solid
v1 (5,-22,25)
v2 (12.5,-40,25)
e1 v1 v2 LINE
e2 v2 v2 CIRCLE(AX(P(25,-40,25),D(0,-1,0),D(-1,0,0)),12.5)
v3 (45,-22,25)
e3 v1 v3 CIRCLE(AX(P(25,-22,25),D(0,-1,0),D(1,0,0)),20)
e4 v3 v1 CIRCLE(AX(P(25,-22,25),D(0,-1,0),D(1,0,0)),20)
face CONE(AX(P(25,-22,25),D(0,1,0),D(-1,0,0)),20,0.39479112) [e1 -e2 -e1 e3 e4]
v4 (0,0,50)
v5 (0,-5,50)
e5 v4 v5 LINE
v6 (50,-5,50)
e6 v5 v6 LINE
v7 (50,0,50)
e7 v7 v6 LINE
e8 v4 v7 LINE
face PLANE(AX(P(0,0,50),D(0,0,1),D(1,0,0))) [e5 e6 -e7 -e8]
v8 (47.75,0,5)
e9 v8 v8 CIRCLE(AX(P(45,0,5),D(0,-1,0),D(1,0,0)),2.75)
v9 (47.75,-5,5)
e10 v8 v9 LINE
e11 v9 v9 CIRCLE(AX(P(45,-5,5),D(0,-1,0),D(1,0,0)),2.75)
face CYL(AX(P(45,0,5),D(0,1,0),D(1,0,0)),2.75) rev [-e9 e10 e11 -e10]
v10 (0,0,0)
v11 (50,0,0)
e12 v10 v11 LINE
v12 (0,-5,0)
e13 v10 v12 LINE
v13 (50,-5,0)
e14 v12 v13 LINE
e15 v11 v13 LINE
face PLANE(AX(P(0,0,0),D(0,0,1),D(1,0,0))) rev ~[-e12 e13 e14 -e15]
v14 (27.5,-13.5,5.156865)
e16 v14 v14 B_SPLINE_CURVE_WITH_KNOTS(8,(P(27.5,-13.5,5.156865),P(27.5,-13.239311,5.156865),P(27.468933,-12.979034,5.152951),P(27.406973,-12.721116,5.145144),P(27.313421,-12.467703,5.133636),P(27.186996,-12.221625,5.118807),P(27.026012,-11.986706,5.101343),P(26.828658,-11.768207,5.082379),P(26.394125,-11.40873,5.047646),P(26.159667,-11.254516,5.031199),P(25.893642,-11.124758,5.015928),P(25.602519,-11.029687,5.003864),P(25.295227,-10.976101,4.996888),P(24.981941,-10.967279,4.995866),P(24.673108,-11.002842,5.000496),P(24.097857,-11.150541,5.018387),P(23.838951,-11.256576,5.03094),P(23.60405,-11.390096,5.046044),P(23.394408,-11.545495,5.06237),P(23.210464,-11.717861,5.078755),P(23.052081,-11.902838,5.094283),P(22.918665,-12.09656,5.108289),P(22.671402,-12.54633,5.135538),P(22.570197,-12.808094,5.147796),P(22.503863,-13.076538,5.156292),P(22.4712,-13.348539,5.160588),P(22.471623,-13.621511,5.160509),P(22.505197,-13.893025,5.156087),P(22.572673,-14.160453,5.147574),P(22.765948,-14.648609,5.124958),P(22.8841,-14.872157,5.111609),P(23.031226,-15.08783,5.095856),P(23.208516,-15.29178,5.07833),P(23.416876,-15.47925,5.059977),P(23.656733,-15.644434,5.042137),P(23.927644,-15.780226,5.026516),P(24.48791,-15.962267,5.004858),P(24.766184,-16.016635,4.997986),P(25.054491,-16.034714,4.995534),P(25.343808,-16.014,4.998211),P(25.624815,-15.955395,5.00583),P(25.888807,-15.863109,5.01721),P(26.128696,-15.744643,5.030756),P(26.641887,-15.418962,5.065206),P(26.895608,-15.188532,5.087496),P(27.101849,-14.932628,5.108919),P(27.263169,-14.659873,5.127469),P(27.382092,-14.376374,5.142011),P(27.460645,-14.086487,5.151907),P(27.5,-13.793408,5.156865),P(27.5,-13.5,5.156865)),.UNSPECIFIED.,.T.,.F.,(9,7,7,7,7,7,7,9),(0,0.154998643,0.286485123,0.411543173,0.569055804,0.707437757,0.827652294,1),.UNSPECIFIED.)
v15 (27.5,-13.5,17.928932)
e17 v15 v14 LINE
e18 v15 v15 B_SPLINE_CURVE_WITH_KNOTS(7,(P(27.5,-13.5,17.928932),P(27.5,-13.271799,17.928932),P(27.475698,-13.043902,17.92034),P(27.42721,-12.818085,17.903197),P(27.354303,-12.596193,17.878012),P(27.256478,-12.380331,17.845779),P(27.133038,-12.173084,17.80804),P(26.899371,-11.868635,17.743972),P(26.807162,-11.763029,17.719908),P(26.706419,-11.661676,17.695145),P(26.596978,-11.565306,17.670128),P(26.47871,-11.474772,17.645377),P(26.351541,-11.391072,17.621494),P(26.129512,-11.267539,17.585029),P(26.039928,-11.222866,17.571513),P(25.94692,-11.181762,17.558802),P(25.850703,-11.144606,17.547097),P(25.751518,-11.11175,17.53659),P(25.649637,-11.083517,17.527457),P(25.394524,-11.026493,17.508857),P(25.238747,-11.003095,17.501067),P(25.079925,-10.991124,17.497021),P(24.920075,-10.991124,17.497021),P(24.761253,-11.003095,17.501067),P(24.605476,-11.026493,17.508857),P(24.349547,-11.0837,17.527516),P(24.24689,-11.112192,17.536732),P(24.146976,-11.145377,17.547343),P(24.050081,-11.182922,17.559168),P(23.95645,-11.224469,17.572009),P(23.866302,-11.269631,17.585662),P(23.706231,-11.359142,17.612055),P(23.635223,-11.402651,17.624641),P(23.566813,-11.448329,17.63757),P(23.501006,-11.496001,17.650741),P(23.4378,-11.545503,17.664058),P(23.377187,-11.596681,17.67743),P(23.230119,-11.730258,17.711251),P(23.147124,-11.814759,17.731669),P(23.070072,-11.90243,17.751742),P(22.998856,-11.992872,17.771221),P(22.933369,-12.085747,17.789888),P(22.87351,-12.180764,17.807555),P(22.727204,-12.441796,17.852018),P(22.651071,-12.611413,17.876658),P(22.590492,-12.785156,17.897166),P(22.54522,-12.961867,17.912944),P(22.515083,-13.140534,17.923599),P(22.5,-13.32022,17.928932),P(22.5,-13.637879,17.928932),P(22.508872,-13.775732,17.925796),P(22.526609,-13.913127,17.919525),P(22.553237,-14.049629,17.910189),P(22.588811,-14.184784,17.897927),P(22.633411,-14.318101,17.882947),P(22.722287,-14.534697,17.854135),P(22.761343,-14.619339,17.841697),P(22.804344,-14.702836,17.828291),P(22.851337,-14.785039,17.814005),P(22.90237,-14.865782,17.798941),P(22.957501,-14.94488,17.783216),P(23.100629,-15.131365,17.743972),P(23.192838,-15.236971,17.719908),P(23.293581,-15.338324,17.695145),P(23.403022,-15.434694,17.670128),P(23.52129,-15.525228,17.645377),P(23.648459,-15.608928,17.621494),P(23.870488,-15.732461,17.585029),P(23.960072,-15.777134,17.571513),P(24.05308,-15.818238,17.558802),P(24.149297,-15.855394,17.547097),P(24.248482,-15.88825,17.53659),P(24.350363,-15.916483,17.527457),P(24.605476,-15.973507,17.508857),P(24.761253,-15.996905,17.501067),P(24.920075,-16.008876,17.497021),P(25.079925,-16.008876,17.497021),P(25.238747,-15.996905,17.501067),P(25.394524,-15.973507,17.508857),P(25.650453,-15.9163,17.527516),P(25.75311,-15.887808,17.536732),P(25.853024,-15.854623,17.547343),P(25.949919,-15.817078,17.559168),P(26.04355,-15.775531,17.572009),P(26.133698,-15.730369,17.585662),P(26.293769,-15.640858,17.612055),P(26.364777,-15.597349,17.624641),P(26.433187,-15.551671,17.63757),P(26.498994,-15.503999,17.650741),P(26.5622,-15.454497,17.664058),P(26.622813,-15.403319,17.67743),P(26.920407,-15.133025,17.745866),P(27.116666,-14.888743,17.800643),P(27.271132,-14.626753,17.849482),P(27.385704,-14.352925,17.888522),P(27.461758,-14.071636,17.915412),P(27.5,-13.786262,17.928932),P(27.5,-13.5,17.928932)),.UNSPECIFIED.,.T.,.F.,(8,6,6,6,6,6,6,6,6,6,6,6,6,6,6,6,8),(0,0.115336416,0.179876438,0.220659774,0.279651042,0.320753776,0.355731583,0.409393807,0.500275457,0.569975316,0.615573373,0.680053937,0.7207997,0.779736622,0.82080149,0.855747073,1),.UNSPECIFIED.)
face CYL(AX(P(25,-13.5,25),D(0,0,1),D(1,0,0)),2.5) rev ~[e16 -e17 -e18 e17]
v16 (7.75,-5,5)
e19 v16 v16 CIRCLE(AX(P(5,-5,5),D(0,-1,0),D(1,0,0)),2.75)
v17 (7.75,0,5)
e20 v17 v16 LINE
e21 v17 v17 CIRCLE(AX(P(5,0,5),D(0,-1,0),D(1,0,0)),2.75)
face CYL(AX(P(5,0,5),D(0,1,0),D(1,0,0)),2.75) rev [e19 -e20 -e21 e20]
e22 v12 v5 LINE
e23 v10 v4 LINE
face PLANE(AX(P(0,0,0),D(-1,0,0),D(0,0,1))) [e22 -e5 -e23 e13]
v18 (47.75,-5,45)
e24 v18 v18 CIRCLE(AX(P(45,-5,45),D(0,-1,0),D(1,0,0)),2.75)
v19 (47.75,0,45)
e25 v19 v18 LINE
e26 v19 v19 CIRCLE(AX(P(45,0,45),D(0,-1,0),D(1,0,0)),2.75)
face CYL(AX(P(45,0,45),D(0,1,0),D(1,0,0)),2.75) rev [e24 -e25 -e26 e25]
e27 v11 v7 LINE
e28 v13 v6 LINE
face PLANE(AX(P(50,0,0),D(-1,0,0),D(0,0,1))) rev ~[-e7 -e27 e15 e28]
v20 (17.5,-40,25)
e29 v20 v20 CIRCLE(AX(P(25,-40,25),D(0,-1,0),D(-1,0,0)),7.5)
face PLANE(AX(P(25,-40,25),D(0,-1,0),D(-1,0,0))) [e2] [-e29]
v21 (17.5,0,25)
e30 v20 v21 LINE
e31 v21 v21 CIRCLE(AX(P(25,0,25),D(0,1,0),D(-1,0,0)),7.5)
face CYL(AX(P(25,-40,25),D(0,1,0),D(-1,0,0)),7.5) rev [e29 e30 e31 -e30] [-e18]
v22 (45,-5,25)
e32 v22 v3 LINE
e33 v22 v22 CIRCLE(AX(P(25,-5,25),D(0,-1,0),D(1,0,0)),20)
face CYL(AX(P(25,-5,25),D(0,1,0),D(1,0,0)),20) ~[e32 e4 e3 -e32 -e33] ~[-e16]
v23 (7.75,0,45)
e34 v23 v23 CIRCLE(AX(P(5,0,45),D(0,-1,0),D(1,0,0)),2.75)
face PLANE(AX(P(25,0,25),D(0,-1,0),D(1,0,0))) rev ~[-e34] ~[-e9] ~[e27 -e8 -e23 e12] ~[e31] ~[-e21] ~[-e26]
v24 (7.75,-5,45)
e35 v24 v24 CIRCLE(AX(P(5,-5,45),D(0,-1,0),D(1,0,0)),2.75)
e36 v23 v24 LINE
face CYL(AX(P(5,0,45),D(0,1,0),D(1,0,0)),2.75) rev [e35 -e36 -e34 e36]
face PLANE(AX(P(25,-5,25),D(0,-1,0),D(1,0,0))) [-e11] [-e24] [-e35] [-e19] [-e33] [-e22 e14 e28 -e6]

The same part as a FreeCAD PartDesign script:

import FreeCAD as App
import Part
import Sketcher
from FreeCAD import Vector
Q = App.Units.Quantity


def add_polygon(sketch, points):
    """Adds a closed chain of lines whose ends are joined by coincident constraints."""
    first, n = sketch.GeometryCount, len(points)
    for a, b in zip(points, points[1:] + points[:1]):
        sketch.addGeometry(Part.LineSegment(App.Vector(*a, 0), App.Vector(*b, 0)), False)
    for i in range(n):
        sketch.addConstraint(Sketcher.Constraint("Coincident", first + i, 2, first + (i + 1) % n, 1))

doc = App.newDocument("Part")
body = doc.addObject("PartDesign::Body", "Body")

sketch1 = body.newObject("Sketcher::SketchObject", "Sketch")
sketch1.AttachmentSupport = (doc.getObject("XZ_Plane"), [""])
sketch1.MapMode = "FlatFace"
add_polygon(sketch1, [(0, 50), (0, 0), (50, 0), (50, 50)])
sketch1.addGeometry(Part.Circle(Vector(5, 5, 0), Vector(0, 0, 1), 2.8), False)
sketch1.addGeometry(Part.Circle(Vector(45, 5, 0), Vector(0, 0, 1), 2.8), False)
sketch1.addGeometry(Part.Circle(Vector(5, 45, 0), Vector(0, 0, 1), 2.8), False)
sketch1.addGeometry(Part.Circle(Vector(45, 45, 0), Vector(0, 0, 1), 2.8), False)
sketch1.addConstraint([
    Sketcher.Constraint("Vertical", 0),
    Sketcher.Constraint("Horizontal", 1),
    Sketcher.Constraint("Vertical", 2),
    Sketcher.Constraint("Horizontal", 3),
    Sketcher.Constraint("Coincident", 0, 2, -1, 1),
    Sketcher.Constraint("Equal", 4, 5),
    Sketcher.Constraint("Equal", 5, 6),
    Sketcher.Constraint("Equal", 6, 7),
    Sketcher.Constraint("Horizontal", 4, 3, 5, 3),
    Sketcher.Constraint("Horizontal", 6, 3, 7, 3),
    Sketcher.Constraint("Vertical", 4, 3, 6, 3),
    Sketcher.Constraint("Vertical", 5, 3, 7, 3),
    Sketcher.Constraint("Equal", 3, 0),
    Sketcher.Constraint("Diameter", 4, Q("5.5 mm")),
    Sketcher.Constraint("DistanceX", 1, 1, 1, 2, Q("50 mm")),
    Sketcher.Constraint("DistanceX", -1, 1, 4, 3, Q("5 mm")),
    Sketcher.Constraint("DistanceY", -1, 1, 4, 3, Q("5 mm")),
    Sketcher.Constraint("DistanceX", -1, 1, 5, 3, Q("45 mm")),
    Sketcher.Constraint("DistanceY", -1, 1, 6, 3, Q("45 mm")),
])
pad1 = body.newObject("PartDesign::Pad", "Pad")
pad1.Profile = sketch1
pad1.Length = 5

sketch2 = body.newObject("Sketcher::SketchObject", "Sketch001")
sketch2.AttachmentSupport = (doc.getObject("XZ_Plane"), [""])
sketch2.MapMode = "FlatFace"
sketch2.AttachmentOffset = App.Placement(Vector(0, 0, 5), App.Rotation())
sketch2.addGeometry(Part.Circle(Vector(25, 25, 0), Vector(0, 0, 1), 20), False)
sketch2.addConstraint([
    Sketcher.Constraint("Diameter", 0, Q("40 mm")),
    Sketcher.Constraint("DistanceX", -1, 1, 0, 3, Q("25 mm")),
    Sketcher.Constraint("DistanceY", -1, 1, 0, 3, Q("25 mm")),
])
pad2 = body.newObject("PartDesign::Pad", "Pad001")
pad2.Profile = sketch2
pad2.Length = 17

sketch3 = body.newObject("Sketcher::SketchObject", "Sketch002")
sketch3.AttachmentSupport = (doc.getObject("XY_Plane"), [""])
sketch3.MapMode = "FlatFace"
sketch3.AttachmentOffset = App.Placement(Vector(0, 0, 25), App.Rotation())
add_polygon(sketch3, [(12, -40), (18, -40), (18, -22), (5, -22)])
sketch3.addGeometry(Part.LineSegment(Vector(25, -22, 0), Vector(25, -40, 0)), True)
sketch3.addConstraint([
    Sketcher.Constraint("Horizontal", 0),
    Sketcher.Constraint("Vertical", 1),
    Sketcher.Constraint("Horizontal", 2),
    Sketcher.Constraint("Vertical", 4),
    Sketcher.Constraint("Horizontal", 2, 2, 4, 1),
    Sketcher.Constraint("Horizontal", 3, 2, 4, 2),
    Sketcher.Constraint("DistanceX", 0, 1, 0, 2, Q("5 mm")),
    Sketcher.Constraint("DistanceY", 1, 1, 1, 2, Q("18 mm")),
    Sketcher.Constraint("DistanceX", 2, 2, 2, 1, Q("12.5 mm")),
    Sketcher.Constraint("DistanceY", 0, 2, -1, 1, Q("40 mm")),
    Sketcher.Constraint("DistanceX", -1, 1, 2, 2, Q("5 mm")),
    Sketcher.Constraint("DistanceX", -1, 1, 4, 1, Q("25 mm")),
])
revolution = body.newObject("PartDesign::Revolution", "Revolution")
revolution.Profile = sketch3
revolution.ReferenceAxis = (sketch3, ["Axis0"])
revolution.Angle = 360

sketch4 = body.newObject("Sketcher::SketchObject", "Sketch003")
sketch4.AttachmentSupport = (doc.getObject("XZ_Plane"), [""])
sketch4.MapMode = "FlatFace"
sketch4.addGeometry(Part.Circle(Vector(25, 25, 0), Vector(0, 0, 1), 8), False)
sketch4.addConstraint([
    Sketcher.Constraint("Diameter", 0, Q("15 mm")),
    Sketcher.Constraint("DistanceX", -1, 1, 0, 3, Q("25 mm")),
    Sketcher.Constraint("DistanceY", -1, 1, 0, 3, Q("25 mm")),
])
pocket1 = body.newObject("PartDesign::Pocket", "Pocket")
pocket1.Profile = sketch4
pocket1.Type = "ThroughAll"
pocket1.Reversed = True

sketch5 = body.newObject("Sketcher::SketchObject", "Sketch004")
sketch5.AttachmentSupport = (doc.getObject("XY_Plane"), [""])
sketch5.MapMode = "FlatFace"
sketch5.AttachmentOffset = App.Placement(Vector(0, 0, 25), App.Rotation())
sketch5.addGeometry(Part.Circle(Vector(25, -13.5, 0), Vector(0, 0, 1), 2.5), False)
sketch5.addConstraint([
    Sketcher.Constraint("Diameter", 0, Q("5 mm")),
    Sketcher.Constraint("DistanceX", -1, 1, 0, 3, Q("25 mm")),
    Sketcher.Constraint("DistanceY", 0, 3, -1, 1, Q("13.5 mm")),
])
pocket2 = body.newObject("PartDesign::Pocket", "Pocket001")
pocket2.Profile = sketch5
pocket2.Type = "ThroughAll"

doc.recompute()
